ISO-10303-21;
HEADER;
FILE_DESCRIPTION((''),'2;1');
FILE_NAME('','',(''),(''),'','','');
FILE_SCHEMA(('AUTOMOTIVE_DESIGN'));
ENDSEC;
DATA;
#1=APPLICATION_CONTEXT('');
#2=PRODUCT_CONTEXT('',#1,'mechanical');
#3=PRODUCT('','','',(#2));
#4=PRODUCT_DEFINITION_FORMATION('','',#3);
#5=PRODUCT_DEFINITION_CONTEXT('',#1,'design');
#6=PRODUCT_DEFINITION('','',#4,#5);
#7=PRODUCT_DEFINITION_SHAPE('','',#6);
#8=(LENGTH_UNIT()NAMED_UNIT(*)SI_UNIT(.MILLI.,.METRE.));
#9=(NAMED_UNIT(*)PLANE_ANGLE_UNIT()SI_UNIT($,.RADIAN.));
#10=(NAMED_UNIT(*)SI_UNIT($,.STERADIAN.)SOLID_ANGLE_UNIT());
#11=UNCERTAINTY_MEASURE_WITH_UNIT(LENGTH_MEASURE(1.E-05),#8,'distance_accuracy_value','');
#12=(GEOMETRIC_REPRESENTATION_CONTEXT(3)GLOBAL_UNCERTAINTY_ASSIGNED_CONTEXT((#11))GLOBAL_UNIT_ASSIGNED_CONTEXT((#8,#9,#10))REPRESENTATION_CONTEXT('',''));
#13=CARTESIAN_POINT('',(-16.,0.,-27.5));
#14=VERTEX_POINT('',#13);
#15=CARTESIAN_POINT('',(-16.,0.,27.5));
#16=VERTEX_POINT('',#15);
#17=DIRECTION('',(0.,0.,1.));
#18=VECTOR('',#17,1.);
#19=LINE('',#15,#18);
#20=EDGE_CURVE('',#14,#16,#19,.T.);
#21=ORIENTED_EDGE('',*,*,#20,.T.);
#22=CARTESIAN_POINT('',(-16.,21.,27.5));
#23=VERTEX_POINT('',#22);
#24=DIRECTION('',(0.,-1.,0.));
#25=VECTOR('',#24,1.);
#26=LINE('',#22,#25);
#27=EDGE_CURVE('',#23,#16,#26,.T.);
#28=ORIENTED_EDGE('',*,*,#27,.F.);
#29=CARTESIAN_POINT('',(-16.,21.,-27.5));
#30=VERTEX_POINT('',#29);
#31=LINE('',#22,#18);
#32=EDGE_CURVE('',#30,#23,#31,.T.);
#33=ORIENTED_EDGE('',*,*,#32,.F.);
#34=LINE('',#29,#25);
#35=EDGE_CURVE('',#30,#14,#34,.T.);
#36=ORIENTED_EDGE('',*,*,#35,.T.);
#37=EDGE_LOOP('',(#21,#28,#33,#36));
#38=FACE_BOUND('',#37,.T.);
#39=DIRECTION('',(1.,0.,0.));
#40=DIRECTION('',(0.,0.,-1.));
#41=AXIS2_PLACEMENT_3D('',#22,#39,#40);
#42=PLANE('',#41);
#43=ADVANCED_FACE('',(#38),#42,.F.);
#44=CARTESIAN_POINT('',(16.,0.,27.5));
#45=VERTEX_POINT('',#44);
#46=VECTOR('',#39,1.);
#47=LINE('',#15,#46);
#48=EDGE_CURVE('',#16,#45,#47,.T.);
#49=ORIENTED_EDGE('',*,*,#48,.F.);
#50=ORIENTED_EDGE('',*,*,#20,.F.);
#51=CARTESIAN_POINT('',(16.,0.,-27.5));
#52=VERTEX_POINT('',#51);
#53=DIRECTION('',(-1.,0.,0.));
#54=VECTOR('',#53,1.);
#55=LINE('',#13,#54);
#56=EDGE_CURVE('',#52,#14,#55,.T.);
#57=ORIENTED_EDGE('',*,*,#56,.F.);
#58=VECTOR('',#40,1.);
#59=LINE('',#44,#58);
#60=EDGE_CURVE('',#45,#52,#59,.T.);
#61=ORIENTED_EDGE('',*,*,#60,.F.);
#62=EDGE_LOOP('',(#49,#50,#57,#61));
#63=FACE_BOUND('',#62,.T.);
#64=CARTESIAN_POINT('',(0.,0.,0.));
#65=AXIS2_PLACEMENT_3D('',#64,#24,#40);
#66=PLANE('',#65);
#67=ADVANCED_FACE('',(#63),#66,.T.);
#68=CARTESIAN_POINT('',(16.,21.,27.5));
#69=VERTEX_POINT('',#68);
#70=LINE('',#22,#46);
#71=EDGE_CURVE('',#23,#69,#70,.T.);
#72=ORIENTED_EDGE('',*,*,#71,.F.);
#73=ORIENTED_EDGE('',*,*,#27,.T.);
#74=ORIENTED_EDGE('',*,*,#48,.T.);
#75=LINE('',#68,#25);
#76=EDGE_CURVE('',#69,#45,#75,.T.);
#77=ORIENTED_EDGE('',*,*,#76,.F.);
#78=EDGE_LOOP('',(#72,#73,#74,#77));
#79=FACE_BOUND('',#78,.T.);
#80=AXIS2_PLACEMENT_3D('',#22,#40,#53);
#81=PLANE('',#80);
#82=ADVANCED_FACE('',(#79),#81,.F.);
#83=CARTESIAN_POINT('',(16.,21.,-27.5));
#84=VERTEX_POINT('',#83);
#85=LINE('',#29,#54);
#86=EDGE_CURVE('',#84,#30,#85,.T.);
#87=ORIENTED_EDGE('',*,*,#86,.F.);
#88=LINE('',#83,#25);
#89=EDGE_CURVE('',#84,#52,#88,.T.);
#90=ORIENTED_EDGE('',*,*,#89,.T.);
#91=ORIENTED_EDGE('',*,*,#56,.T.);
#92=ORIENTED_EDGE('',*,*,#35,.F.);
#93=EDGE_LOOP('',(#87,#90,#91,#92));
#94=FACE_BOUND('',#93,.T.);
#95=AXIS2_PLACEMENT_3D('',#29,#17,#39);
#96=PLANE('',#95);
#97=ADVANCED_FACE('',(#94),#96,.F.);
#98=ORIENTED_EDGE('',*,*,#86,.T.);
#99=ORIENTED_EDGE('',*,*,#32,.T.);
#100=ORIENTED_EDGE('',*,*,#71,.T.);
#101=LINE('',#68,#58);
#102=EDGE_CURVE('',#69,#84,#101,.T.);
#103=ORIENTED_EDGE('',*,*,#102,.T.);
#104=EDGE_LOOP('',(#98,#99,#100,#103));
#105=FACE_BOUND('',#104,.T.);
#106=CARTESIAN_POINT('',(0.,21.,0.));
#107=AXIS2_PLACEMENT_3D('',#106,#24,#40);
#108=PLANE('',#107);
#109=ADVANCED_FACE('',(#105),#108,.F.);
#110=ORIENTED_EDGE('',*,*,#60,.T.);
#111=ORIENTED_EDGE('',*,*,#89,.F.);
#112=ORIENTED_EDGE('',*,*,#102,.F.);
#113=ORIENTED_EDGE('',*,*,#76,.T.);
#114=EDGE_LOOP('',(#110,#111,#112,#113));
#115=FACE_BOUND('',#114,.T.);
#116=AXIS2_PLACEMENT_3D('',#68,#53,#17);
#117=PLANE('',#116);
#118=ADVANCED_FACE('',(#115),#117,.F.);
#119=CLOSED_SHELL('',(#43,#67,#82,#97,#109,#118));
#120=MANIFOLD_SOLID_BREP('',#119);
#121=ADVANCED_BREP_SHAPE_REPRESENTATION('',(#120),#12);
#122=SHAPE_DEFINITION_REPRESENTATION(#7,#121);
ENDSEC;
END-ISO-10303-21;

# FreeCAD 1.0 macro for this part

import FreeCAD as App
import Part
import Sketcher

V = App.Vector

doc = App.newDocument("Part")
params = doc.addObject("Spreadsheet::Sheet", "Params")
for row, (alias, value) in enumerate([
    ("sketch1_width", "32 mm"),
    ("sketch1_height", "55 mm"),
    ("pad1_length", "21 mm"),
], start=1):
    params.set(f"A{row}", alias)
    params.set(f"B{row}", "=" + value)
    params.setAlias(f"B{row}", alias)

body = doc.addObject("PartDesign::Body", "Body")

sketch1 = body.newObject("Sketcher::SketchObject", "Sketch")
sketch1.AttachmentSupport = (doc.getObject("XZ_Plane"), [""])
sketch1.MapMode = "FlatFace"
sketch1.addGeometry(Part.LineSegment(V(-16, -28, 0), V(-16, 28, 0)), False)
sketch1.addGeometry(Part.LineSegment(V(-16, 28, 0), V(16, 28, 0)), False)
sketch1.addGeometry(Part.LineSegment(V(16, 28, 0), V(16, -28, 0)), False)
sketch1.addGeometry(Part.LineSegment(V(16, -28, 0), V(-16, -28, 0)), False)
sketch1.addConstraint(Sketcher.Constraint("Coincident", 0, 2, 1, 1))
sketch1.addConstraint(Sketcher.Constraint("Coincident", 1, 2, 2, 1))
sketch1.addConstraint(Sketcher.Constraint("Coincident", 2, 2, 3, 1))
sketch1.addConstraint(Sketcher.Constraint("Coincident", 3, 2, 0, 1))
sketch1.addConstraint(Sketcher.Constraint("Vertical", 0))
sketch1.addConstraint(Sketcher.Constraint("Horizontal", 1))
sketch1.addConstraint(Sketcher.Constraint("Vertical", 2))
sketch1.addConstraint(Sketcher.Constraint("Horizontal", 3))
sketch1.addConstraint(Sketcher.Constraint("Symmetric", 0, 2, 2, 2, -1, 1))
sketch1.addConstraint(Sketcher.Constraint("DistanceX", 1, 1, 1, 2, 32.0))
sketch1.addConstraint(Sketcher.Constraint("DistanceY", 0, 1, 0, 2, 55.0))
sketch1.setExpression("Constraints[9]", "Params.sketch1_width")
sketch1.setExpression("Constraints[10]", "Params.sketch1_height")
pad1 = body.newObject("PartDesign::Pad", "Pad")
pad1.Profile = sketch1
pad1.setExpression("Length", "Params.pad1_length")
pad1.Reversed = True

doc.recompute()
